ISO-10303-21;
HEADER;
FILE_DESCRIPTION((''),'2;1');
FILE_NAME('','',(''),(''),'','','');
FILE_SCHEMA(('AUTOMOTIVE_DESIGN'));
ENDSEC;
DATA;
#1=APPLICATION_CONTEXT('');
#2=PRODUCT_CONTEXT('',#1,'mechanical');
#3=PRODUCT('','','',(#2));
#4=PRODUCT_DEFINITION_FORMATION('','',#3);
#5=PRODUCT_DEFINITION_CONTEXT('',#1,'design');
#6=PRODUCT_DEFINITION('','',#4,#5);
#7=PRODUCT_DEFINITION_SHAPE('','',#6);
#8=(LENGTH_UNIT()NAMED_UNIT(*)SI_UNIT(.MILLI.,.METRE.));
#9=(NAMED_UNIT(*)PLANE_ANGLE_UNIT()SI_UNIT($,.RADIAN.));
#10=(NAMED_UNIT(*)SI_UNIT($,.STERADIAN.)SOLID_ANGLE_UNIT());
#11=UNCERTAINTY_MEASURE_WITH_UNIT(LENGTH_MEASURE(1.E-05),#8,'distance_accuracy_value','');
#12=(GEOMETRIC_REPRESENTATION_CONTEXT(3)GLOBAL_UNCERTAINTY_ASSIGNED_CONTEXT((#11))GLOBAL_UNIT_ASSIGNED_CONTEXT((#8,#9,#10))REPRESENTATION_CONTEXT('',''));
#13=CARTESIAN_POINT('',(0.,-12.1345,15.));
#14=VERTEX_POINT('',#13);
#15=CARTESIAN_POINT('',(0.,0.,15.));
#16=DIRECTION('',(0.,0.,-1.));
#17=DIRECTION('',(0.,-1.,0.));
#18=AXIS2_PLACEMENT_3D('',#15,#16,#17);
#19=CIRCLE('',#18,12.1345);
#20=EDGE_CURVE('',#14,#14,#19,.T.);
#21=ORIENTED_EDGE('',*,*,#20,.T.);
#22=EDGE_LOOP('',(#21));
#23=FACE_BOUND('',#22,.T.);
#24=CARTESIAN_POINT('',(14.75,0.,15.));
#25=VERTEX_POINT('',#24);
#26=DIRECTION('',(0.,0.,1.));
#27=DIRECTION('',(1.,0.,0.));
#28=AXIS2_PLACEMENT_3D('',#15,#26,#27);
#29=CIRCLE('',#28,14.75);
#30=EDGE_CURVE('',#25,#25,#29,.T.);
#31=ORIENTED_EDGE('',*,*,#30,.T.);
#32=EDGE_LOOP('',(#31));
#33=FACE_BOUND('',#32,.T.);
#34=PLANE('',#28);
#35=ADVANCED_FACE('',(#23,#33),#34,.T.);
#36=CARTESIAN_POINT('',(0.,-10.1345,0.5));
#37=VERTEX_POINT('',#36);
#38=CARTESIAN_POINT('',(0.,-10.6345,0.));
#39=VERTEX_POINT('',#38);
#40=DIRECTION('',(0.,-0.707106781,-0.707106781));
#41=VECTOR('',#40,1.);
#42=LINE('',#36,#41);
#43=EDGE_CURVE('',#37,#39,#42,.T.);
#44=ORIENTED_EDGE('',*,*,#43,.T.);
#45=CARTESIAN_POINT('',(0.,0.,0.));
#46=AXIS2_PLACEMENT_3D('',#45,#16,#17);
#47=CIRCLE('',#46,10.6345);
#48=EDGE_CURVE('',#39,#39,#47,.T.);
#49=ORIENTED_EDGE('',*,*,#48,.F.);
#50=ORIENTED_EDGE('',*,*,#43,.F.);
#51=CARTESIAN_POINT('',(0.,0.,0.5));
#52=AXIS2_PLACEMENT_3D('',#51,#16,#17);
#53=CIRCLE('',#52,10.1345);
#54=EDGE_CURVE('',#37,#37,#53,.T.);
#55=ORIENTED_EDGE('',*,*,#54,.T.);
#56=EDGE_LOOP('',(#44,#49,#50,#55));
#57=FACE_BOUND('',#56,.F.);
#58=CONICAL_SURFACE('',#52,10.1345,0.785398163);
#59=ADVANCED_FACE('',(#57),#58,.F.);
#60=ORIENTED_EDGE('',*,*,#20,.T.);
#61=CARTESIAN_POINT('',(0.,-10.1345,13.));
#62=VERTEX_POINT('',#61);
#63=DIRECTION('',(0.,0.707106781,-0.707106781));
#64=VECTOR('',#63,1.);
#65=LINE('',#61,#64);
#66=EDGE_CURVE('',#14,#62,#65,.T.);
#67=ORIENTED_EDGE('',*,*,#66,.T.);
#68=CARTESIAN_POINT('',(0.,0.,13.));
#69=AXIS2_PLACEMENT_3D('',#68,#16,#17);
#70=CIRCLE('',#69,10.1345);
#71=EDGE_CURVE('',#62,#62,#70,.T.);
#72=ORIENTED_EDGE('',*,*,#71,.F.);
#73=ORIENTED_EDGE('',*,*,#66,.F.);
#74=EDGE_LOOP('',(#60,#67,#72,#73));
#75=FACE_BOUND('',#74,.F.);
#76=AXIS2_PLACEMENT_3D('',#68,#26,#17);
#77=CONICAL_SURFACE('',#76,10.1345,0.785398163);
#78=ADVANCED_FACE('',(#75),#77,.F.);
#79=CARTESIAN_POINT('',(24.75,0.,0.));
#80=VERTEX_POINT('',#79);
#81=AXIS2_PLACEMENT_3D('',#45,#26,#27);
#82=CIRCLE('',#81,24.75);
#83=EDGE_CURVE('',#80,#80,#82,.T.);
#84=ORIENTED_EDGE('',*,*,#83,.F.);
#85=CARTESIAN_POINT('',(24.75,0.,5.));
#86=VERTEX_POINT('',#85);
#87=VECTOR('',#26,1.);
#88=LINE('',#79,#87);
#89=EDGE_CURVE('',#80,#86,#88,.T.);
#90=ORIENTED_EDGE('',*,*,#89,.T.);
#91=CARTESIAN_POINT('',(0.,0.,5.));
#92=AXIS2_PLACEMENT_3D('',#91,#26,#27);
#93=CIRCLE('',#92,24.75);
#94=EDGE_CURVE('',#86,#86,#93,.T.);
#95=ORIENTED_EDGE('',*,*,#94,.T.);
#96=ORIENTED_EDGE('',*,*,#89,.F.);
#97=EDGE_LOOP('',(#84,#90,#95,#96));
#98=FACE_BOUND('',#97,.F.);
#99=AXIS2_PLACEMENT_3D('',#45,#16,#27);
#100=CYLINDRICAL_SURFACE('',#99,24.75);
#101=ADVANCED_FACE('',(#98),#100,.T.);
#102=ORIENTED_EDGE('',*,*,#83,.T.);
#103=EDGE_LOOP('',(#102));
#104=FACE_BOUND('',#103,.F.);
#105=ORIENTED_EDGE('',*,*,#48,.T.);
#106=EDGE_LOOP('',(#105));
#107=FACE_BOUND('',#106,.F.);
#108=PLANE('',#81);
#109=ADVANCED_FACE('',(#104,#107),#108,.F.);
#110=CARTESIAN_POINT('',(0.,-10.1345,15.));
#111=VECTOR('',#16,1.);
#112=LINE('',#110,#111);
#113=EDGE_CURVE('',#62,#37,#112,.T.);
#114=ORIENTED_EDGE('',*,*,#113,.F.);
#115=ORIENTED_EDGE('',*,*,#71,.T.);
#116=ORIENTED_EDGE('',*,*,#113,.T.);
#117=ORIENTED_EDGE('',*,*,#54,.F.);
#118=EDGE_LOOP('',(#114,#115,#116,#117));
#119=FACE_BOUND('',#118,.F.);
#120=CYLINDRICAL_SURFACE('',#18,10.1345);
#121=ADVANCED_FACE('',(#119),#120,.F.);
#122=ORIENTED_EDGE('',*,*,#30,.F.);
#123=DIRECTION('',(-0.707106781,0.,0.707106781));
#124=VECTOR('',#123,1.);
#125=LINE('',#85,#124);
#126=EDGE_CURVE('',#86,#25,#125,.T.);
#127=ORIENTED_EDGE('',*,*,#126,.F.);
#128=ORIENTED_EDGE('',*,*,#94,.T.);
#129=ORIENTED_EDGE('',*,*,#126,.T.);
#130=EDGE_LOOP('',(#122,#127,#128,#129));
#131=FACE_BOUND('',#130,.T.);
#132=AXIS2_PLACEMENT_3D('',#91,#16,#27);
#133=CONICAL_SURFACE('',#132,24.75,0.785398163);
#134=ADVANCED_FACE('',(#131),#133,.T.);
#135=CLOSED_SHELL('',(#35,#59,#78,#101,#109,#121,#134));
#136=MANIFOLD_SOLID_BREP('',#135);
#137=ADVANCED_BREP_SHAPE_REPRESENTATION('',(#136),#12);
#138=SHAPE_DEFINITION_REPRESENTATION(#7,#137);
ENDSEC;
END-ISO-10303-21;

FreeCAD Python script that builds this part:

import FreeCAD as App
import Part
import Sketcher


def edges_at(feature, points):
    """Names of the edges that pass closest to the given points."""
    edges = feature.Shape.Edges
    near = lambda p: min(range(len(edges)), key=lambda i: edges[i].distToShape(Part.Vertex(*p))[0])
    return sorted({f"Edge{near(p) + 1}" for p in points})

doc = App.newDocument("Part")
body = doc.addObject("PartDesign::Body", "Body")

# Sketch on XY plane
sketch1 = doc.addObject("Sketcher::SketchObject", "Sketch")
body.addObject(sketch1)
sketch1.AttachmentSupport = (doc.XY_Plane, [""])
sketch1.MapMode = "FlatFace"
sketch1.addGeometry(Part.Circle(App.Vector(0, 0, 0), App.Vector(0, 0, 1), 25), False)
sketch1.addConstraint(Sketcher.Constraint("Coincident", 0, 3, -1, 1))
sketch1.addConstraint(Sketcher.Constraint("Diameter", 0, 49.5))
pad1 = doc.addObject("PartDesign::Pad", "Pad")
body.addObject(pad1)
pad1.Profile = sketch1
pad1.Length = 15

# Sketch on XY plane
sketch2 = doc.addObject("Sketcher::SketchObject", "Sketch001")
body.addObject(sketch2)
sketch2.AttachmentSupport = (doc.XY_Plane, [""])
sketch2.MapMode = "FlatFace"
sketch2.AttachmentOffset = App.Placement(App.Vector(0, 0, 15), App.Rotation())
sketch2.addGeometry(Part.Circle(App.Vector(0, 0, 0), App.Vector(0, 0, 1), 10), False)
sketch2.addConstraint(Sketcher.Constraint("Coincident", 0, 3, -1, 1))
sketch2.addConstraint(Sketcher.Constraint("Diameter", 0, 20.269))
doc.recompute()
hole = doc.addObject("PartDesign::Hole", "Hole")
body.addObject(hole)
hole.Profile = sketch2
hole.ThreadType = "None"
hole.Diameter = 20.269
hole.DepthType = "Dimension"
hole.Depth = 15
hole.DrillPoint = "Angled"
hole.DrillPointAngle = 118
doc.recompute()

chamfer = doc.addObject("PartDesign::Chamfer", "Chamfer")
body.addObject(chamfer)
chamfer.Base = (hole, edges_at(hole, [(-24.75, 0, 15)]))
chamfer.Size = 10
doc.recompute()

chamfer2 = doc.addObject("PartDesign::Chamfer", "Chamfer001")
body.addObject(chamfer2)
chamfer2.Base = (chamfer, edges_at(chamfer, [(0, 10.134, 15)]))
chamfer2.Size = 2
doc.recompute()

chamfer3 = doc.addObject("PartDesign::Chamfer", "Chamfer002")
body.addObject(chamfer3)
chamfer3.Base = (chamfer2, edges_at(chamfer2, [(0, 10.134, 0)]))
chamfer3.Size = 0.5

doc.recompute()
